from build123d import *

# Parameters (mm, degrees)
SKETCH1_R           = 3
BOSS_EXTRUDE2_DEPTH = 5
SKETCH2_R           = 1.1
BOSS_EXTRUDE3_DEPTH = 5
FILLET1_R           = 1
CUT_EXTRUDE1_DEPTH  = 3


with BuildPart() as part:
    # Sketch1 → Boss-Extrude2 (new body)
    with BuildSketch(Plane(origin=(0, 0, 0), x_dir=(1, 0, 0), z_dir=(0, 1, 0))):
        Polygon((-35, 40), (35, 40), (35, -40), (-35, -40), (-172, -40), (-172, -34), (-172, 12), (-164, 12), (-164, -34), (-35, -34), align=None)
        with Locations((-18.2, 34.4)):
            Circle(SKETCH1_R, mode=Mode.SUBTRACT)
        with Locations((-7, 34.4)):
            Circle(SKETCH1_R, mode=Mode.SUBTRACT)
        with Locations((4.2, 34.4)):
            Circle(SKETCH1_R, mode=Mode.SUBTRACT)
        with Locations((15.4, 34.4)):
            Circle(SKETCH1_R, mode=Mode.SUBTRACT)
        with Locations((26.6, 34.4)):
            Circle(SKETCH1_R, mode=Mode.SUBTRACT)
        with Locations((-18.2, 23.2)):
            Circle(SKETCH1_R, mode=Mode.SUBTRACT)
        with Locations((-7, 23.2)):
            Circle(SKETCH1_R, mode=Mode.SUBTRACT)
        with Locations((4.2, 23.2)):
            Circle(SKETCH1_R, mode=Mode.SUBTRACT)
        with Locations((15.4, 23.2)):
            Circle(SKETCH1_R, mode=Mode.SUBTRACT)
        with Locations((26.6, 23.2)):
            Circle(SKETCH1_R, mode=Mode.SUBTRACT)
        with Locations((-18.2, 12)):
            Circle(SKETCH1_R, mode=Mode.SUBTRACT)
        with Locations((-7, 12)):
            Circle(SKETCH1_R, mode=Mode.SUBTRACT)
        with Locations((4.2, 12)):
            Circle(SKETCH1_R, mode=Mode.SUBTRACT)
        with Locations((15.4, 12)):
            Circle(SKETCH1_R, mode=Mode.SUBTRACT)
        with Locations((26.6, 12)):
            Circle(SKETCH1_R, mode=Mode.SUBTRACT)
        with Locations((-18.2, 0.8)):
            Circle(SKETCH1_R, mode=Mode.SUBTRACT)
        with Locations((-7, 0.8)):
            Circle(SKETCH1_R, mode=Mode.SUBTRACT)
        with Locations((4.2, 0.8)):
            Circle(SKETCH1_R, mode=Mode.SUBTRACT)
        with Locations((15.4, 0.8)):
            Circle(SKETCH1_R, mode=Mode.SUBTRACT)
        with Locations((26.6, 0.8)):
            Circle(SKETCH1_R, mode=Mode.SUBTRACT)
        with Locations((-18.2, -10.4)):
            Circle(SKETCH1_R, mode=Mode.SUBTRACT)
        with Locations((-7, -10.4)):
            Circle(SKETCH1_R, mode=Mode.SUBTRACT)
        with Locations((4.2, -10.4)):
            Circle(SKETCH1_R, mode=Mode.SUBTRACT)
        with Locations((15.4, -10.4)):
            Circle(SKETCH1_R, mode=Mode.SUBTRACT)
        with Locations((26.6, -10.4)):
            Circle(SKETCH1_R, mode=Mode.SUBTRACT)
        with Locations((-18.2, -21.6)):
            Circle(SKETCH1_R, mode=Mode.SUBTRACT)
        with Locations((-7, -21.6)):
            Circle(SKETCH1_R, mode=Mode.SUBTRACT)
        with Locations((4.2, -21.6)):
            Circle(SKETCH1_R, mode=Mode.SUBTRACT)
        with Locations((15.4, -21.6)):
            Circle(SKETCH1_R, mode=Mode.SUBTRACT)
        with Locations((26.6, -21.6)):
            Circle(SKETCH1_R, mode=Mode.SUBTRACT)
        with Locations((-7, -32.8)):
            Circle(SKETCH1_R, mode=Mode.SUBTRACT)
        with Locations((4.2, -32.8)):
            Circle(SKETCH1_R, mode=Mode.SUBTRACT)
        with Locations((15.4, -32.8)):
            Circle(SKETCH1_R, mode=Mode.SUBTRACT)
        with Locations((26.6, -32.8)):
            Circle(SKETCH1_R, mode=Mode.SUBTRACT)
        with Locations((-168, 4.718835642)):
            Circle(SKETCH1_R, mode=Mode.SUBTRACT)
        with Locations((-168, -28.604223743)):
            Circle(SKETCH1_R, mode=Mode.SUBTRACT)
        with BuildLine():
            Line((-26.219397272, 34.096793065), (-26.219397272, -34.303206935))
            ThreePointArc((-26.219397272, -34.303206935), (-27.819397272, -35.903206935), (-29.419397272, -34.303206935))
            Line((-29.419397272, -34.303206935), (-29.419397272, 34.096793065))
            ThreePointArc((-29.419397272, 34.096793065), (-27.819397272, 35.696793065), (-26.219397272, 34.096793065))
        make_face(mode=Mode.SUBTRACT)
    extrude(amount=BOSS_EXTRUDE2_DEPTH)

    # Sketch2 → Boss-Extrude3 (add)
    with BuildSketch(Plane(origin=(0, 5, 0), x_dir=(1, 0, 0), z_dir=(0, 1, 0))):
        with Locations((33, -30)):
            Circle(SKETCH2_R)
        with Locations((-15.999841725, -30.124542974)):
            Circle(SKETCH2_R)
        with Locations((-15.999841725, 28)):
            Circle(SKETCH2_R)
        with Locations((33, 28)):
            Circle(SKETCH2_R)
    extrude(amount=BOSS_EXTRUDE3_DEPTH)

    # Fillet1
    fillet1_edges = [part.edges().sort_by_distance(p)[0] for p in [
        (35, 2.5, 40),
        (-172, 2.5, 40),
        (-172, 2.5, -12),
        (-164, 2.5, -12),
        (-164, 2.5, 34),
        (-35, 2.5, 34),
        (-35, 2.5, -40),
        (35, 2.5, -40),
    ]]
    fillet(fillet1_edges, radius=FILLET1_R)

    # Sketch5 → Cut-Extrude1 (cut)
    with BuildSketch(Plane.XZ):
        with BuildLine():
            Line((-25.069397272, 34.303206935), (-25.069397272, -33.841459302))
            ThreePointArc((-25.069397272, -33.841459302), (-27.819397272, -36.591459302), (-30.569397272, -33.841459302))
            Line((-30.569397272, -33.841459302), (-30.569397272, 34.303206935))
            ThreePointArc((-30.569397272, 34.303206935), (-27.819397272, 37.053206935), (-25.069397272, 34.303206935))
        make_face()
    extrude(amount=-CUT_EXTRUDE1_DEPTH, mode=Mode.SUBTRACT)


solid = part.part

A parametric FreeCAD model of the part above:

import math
import FreeCAD as App
import Part
import Sketcher

V = App.Vector


def edges_at(feature, points):
    """Names of the edges that pass closest to the given points."""
    edges = feature.Shape.Edges
    near = lambda p: min(range(len(edges)), key=lambda i: edges[i].distToShape(Part.Vertex(*p))[0])
    return sorted({f"Edge{near(p) + 1}" for p in points})


def add_polygon(sketch, points):
    """Adds a closed chain of lines whose ends are joined by coincident constraints."""
    first, n = sketch.GeometryCount, len(points)
    for a, b in zip(points, points[1:] + points[:1]):
        sketch.addGeometry(Part.LineSegment(App.Vector(*a, 0), App.Vector(*b, 0)), False)
    for i in range(n):
        sketch.addConstraint(Sketcher.Constraint("Coincident", first + i, 2, first + (i + 1) % n, 1))

doc = App.newDocument("Part")
body = doc.addObject("PartDesign::Body", "Body")

sketch1 = body.newObject("Sketcher::SketchObject", "Sketch")
sketch1.AttachmentSupport = (doc.getObject("XZ_Plane"), [""])
sketch1.MapMode = "FlatFace"
add_polygon(sketch1, [(35, -40), (-35, -40), (-35, 34), (-164, 34), (-164, -12), (-172, -12), (-172, 40), (35, 40)])
sketch1.addGeometry(Part.Circle(V(26.6, 32.8, 0), V(0, 0, 1), 3), False)
sketch1.addGeometry(Part.Circle(V(15.4, 32.8, 0), V(0, 0, 1), 3), False)
sketch1.addGeometry(Part.Circle(V(4.2, 32.8, 0), V(0, 0, 1), 3), False)
sketch1.addGeometry(Part.Circle(V(-7, 32.8, 0), V(0, 0, 1), 3), False)
sketch1.addGeometry(Part.Circle(V(26.6, 21.6, 0), V(0, 0, 1), 3), False)
sketch1.addGeometry(Part.Circle(V(15.4, 21.6, 0), V(0, 0, 1), 3), False)
sketch1.addGeometry(Part.Circle(V(4.2, 21.6, 0), V(0, 0, 1), 3), False)
sketch1.addGeometry(Part.Circle(V(-7, 21.6, 0), V(0, 0, 1), 3), False)
sketch1.addGeometry(Part.Circle(V(-18.2, 21.6, 0), V(0, 0, 1), 3), False)
sketch1.addGeometry(Part.Circle(V(26.6, 10.4, 0), V(0, 0, 1), 3), False)
sketch1.addGeometry(Part.Circle(V(15.4, 10.4, 0), V(0, 0, 1), 3), False)
sketch1.addGeometry(Part.Circle(V(4.2, 10.4, 0), V(0, 0, 1), 3), False)
sketch1.addGeometry(Part.Circle(V(-7, 10.4, 0), V(0, 0, 1), 3), False)
sketch1.addGeometry(Part.Circle(V(-18.2, 10.4, 0), V(0, 0, 1), 3), False)
sketch1.addGeometry(Part.LineSegment(V(-26.219397, -34.096793, 0), V(-26.219397, 34.303207, 0)), False)
sketch1.addGeometry(Part.ArcOfCircle(Part.Circle(V(-27.819397, 34.303207, 0), V(0, 0, 1), 1.6), math.radians(0), math.radians(180)), False)
sketch1.addGeometry(Part.LineSegment(V(-29.419397, 34.303207, 0), V(-29.419397, -34.096793, 0)), False)
sketch1.addGeometry(Part.ArcOfCircle(Part.Circle(V(-27.819397, -34.096793, 0), V(0, 0, 1), 1.6), math.radians(180), math.radians(360)), False)
sketch1.addGeometry(Part.Circle(V(-168, 28.604224, 0), V(0, 0, 1), 3), False)
sketch1.addGeometry(Part.Circle(V(26.6, -0.8, 0), V(0, 0, 1), 3), False)
sketch1.addGeometry(Part.Circle(V(15.4, -0.8, 0), V(0, 0, 1), 3), False)
sketch1.addGeometry(Part.Circle(V(4.2, -0.8, 0), V(0, 0, 1), 3), False)
sketch1.addGeometry(Part.Circle(V(-7, -0.8, 0), V(0, 0, 1), 3), False)
sketch1.addGeometry(Part.Circle(V(-18.2, -0.8, 0), V(0, 0, 1), 3), False)
sketch1.addGeometry(Part.Circle(V(26.6, -12, 0), V(0, 0, 1), 3), False)
sketch1.addGeometry(Part.Circle(V(15.4, -12, 0), V(0, 0, 1), 3), False)
sketch1.addGeometry(Part.Circle(V(4.2, -12, 0), V(0, 0, 1), 3), False)
sketch1.addGeometry(Part.Circle(V(-7, -12, 0), V(0, 0, 1), 3), False)
sketch1.addGeometry(Part.Circle(V(-18.2, -12, 0), V(0, 0, 1), 3), False)
sketch1.addGeometry(Part.Circle(V(26.6, -23.2, 0), V(0, 0, 1), 3), False)
sketch1.addGeometry(Part.Circle(V(15.4, -23.2, 0), V(0, 0, 1), 3), False)
sketch1.addGeometry(Part.Circle(V(4.2, -23.2, 0), V(0, 0, 1), 3), False)
sketch1.addGeometry(Part.Circle(V(-7, -23.2, 0), V(0, 0, 1), 3), False)
sketch1.addGeometry(Part.Circle(V(-18.2, -23.2, 0), V(0, 0, 1), 3), False)
sketch1.addGeometry(Part.Circle(V(26.6, -34.4, 0), V(0, 0, 1), 3), False)
sketch1.addGeometry(Part.Circle(V(15.4, -34.4, 0), V(0, 0, 1), 3), False)
sketch1.addGeometry(Part.Circle(V(4.2, -34.4, 0), V(0, 0, 1), 3), False)
sketch1.addGeometry(Part.Circle(V(-7, -34.4, 0), V(0, 0, 1), 3), False)
sketch1.addGeometry(Part.Circle(V(-18.2, -34.4, 0), V(0, 0, 1), 3), False)
sketch1.addGeometry(Part.Circle(V(-168, -4.718836, 0), V(0, 0, 1), 3), False)
sketch1.addConstraint(Sketcher.Constraint("Tangent", 22, 2, 23, 1))
sketch1.addConstraint(Sketcher.Constraint("Tangent", 23, 2, 24, 1))
sketch1.addConstraint(Sketcher.Constraint("Tangent", 24, 2, 25, 1))
sketch1.addConstraint(Sketcher.Constraint("Tangent", 25, 2, 22, 1))
sketch1.addConstraint(Sketcher.Constraint("Horizontal", 0))
sketch1.addConstraint(Sketcher.Constraint("Vertical", 1))
sketch1.addConstraint(Sketcher.Constraint("Horizontal", 2))
sketch1.addConstraint(Sketcher.Constraint("Vertical", 3))
sketch1.addConstraint(Sketcher.Constraint("Horizontal", 4))
sketch1.addConstraint(Sketcher.Constraint("Vertical", 5))
sketch1.addConstraint(Sketcher.Constraint("Horizontal", 6))
sketch1.addConstraint(Sketcher.Constraint("Vertical", 7))
sketch1.addConstraint(Sketcher.Constraint("Vertical", 22))
sketch1.addConstraint(Sketcher.Constraint("Vertical", 24))
sketch1.addConstraint(Sketcher.Constraint("Equal", 8, 9))
sketch1.addConstraint(Sketcher.Constraint("Equal", 9, 10))
sketch1.addConstraint(Sketcher.Constraint("Equal", 10, 11))
sketch1.addConstraint(Sketcher.Constraint("Equal", 11, 12))
sketch1.addConstraint(Sketcher.Constraint("Equal", 12, 13))
sketch1.addConstraint(Sketcher.Constraint("Equal", 13, 14))
sketch1.addConstraint(Sketcher.Constraint("Equal", 14, 15))
sketch1.addConstraint(Sketcher.Constraint("Equal", 15, 16))
sketch1.addConstraint(Sketcher.Constraint("Equal", 16, 17))
sketch1.addConstraint(Sketcher.Constraint("Equal", 17, 18))
sketch1.addConstraint(Sketcher.Constraint("Equal", 18, 19))
sketch1.addConstraint(Sketcher.Constraint("Equal", 19, 20))
sketch1.addConstraint(Sketcher.Constraint("Equal", 20, 21))
sketch1.addConstraint(Sketcher.Constraint("Equal", 21, 26))
sketch1.addConstraint(Sketcher.Constraint("Equal", 26, 27))
sketch1.addConstraint(Sketcher.Constraint("Equal", 27, 28))
sketch1.addConstraint(Sketcher.Constraint("Equal", 28, 29))
sketch1.addConstraint(Sketcher.Constraint("Equal", 29, 30))
sketch1.addConstraint(Sketcher.Constraint("Equal", 30, 31))
sketch1.addConstraint(Sketcher.Constraint("Equal", 31, 32))
sketch1.addConstraint(Sketcher.Constraint("Equal", 32, 33))
sketch1.addConstraint(Sketcher.Constraint("Equal", 33, 34))
sketch1.addConstraint(Sketcher.Constraint("Equal", 34, 35))
sketch1.addConstraint(Sketcher.Constraint("Equal", 35, 36))
sketch1.addConstraint(Sketcher.Constraint("Equal", 36, 37))
sketch1.addConstraint(Sketcher.Constraint("Equal", 37, 38))
sketch1.addConstraint(Sketcher.Constraint("Equal", 38, 39))
sketch1.addConstraint(Sketcher.Constraint("Equal", 39, 40))
sketch1.addConstraint(Sketcher.Constraint("Equal", 40, 41))
sketch1.addConstraint(Sketcher.Constraint("Equal", 41, 42))
sketch1.addConstraint(Sketcher.Constraint("Equal", 42, 43))
sketch1.addConstraint(Sketcher.Constraint("Equal", 43, 44))
sketch1.addConstraint(Sketcher.Constraint("Equal", 44, 45))
sketch1.addConstraint(Sketcher.Constraint("Equal", 45, 46))
sketch1.addConstraint(Sketcher.Constraint("Equal", 46, 47))
sketch1.addConstraint(Sketcher.Constraint("Symmetric", 0, 2, 6, 2, -1, 1))
sketch1.addConstraint(Sketcher.Constraint("Horizontal", 8, 3, 9, 3))
sketch1.addConstraint(Sketcher.Constraint("Horizontal", 9, 3, 10, 3))
sketch1.addConstraint(Sketcher.Constraint("Horizontal", 10, 3, 11, 3))
sketch1.addConstraint(Sketcher.Constraint("Horizontal", 12, 3, 13, 3))
sketch1.addConstraint(Sketcher.Constraint("Horizontal", 13, 3, 14, 3))
sketch1.addConstraint(Sketcher.Constraint("Horizontal", 14, 3, 15, 3))
sketch1.addConstraint(Sketcher.Constraint("Horizontal", 15, 3, 16, 3))
sketch1.addConstraint(Sketcher.Constraint("Horizontal", 17, 3, 18, 3))
sketch1.addConstraint(Sketcher.Constraint("Horizontal", 18, 3, 19, 3))
sketch1.addConstraint(Sketcher.Constraint("Horizontal", 19, 3, 20, 3))
sketch1.addConstraint(Sketcher.Constraint("Horizontal", 20, 3, 21, 3))
sketch1.addConstraint(Sketcher.Constraint("Horizontal", 27, 3, 28, 3))
sketch1.addConstraint(Sketcher.Constraint("Horizontal", 28, 3, 29, 3))
sketch1.addConstraint(Sketcher.Constraint("Horizontal", 29, 3, 30, 3))
sketch1.addConstraint(Sketcher.Constraint("Horizontal", 30, 3, 31, 3))
sketch1.addConstraint(Sketcher.Constraint("Horizontal", 32, 3, 33, 3))
sketch1.addConstraint(Sketcher.Constraint("Horizontal", 33, 3, 34, 3))
sketch1.addConstraint(Sketcher.Constraint("Horizontal", 34, 3, 35, 3))
sketch1.addConstraint(Sketcher.Constraint("Horizontal", 35, 3, 36, 3))
sketch1.addConstraint(Sketcher.Constraint("Horizontal", 37, 3, 38, 3))
sketch1.addConstraint(Sketcher.Constraint("Horizontal", 38, 3, 39, 3))
sketch1.addConstraint(Sketcher.Constraint("Horizontal", 39, 3, 40, 3))
sketch1.addConstraint(Sketcher.Constraint("Horizontal", 40, 3, 41, 3))
sketch1.addConstraint(Sketcher.Constraint("Horizontal", 42, 3, 43, 3))
sketch1.addConstraint(Sketcher.Constraint("Horizontal", 43, 3, 44, 3))
sketch1.addConstraint(Sketcher.Constraint("Horizontal", 44, 3, 45, 3))
sketch1.addConstraint(Sketcher.Constraint("Horizontal", 45, 3, 46, 3))
sketch1.addConstraint(Sketcher.Constraint("Horizontal", 36, 3, 3, 2))
sketch1.addConstraint(Sketcher.Constraint("Vertical", 8, 3, 12, 3))
sketch1.addConstraint(Sketcher.Constraint("Vertical", 9, 3, 13, 3))
sketch1.addConstraint(Sketcher.Constraint("Vertical", 10, 3, 14, 3))
sketch1.addConstraint(Sketcher.Constraint("Vertical", 11, 3, 15, 3))
sketch1.addConstraint(Sketcher.Constraint("Vertical", 12, 3, 17, 3))
sketch1.addConstraint(Sketcher.Constraint("Vertical", 13, 3, 18, 3))
sketch1.addConstraint(Sketcher.Constraint("Vertical", 14, 3, 19, 3))
sketch1.addConstraint(Sketcher.Constraint("Vertical", 15, 3, 20, 3))
sketch1.addConstraint(Sketcher.Constraint("Vertical", 16, 3, 21, 3))
sketch1.addConstraint(Sketcher.Constraint("Vertical", 17, 3, 27, 3))
sketch1.addConstraint(Sketcher.Constraint("Vertical", 18, 3, 28, 3))
sketch1.addConstraint(Sketcher.Constraint("Vertical", 19, 3, 29, 3))
sketch1.addConstraint(Sketcher.Constraint("Vertical", 20, 3, 30, 3))
sketch1.addConstraint(Sketcher.Constraint("Vertical", 21, 3, 31, 3))
sketch1.addConstraint(Sketcher.Constraint("Vertical", 27, 3, 32, 3))
sketch1.addConstraint(Sketcher.Constraint("Vertical", 28, 3, 33, 3))
sketch1.addConstraint(Sketcher.Constraint("Vertical", 29, 3, 34, 3))
sketch1.addConstraint(Sketcher.Constraint("Vertical", 30, 3, 35, 3))
sketch1.addConstraint(Sketcher.Constraint("Vertical", 31, 3, 36, 3))
sketch1.addConstraint(Sketcher.Constraint("Vertical", 32, 3, 37, 3))
sketch1.addConstraint(Sketcher.Constraint("Vertical", 33, 3, 38, 3))
sketch1.addConstraint(Sketcher.Constraint("Vertical", 34, 3, 39, 3))
sketch1.addConstraint(Sketcher.Constraint("Vertical", 35, 3, 40, 3))
sketch1.addConstraint(Sketcher.Constraint("Vertical", 36, 3, 41, 3))
sketch1.addConstraint(Sketcher.Constraint("Vertical", 37, 3, 42, 3))
sketch1.addConstraint(Sketcher.Constraint("Vertical", 38, 3, 43, 3))
sketch1.addConstraint(Sketcher.Constraint("Vertical", 39, 3, 44, 3))
sketch1.addConstraint(Sketcher.Constraint("Vertical", 40, 3, 45, 3))
sketch1.addConstraint(Sketcher.Constraint("Vertical", 41, 3, 46, 3))
sketch1.addConstraint(Sketcher.Constraint("Vertical", 26, 3, 47, 3))
sketch1.addConstraint(Sketcher.Constraint("Diameter", 8, 6.0))
sketch1.addConstraint(Sketcher.Constraint("Radius", 23, 1.6))
sketch1.addConstraint(Sketcher.Constraint("DistanceX", 0, 2, 0, 1, 70.0))
sketch1.addConstraint(Sketcher.Constraint("DistanceX", 2, 2, 2, 1, 129.0))
sketch1.addConstraint(Sketcher.Constraint("DistanceX", 4, 2, 4, 1, 8.0))
sketch1.addConstraint(Sketcher.Constraint("DistanceY", 1, 1, 1, 2, 74.0))
sketch1.addConstraint(Sketcher.Constraint("DistanceY", 3, 2, 3, 1, 46.0))
sketch1.addConstraint(Sketcher.Constraint("DistanceY", 5, 1, 5, 2, 52.0))
sketch1.addConstraint(Sketcher.Constraint("DistanceY", 22, 1, 22, 2, 68.4))
sketch1.addConstraint(Sketcher.Constraint("DistanceX", 11, 3, -1, 1, 7.0))
sketch1.addConstraint(Sketcher.Constraint("DistanceX", 26, 3, -1, 1, 168.0))
sketch1.addConstraint(Sketcher.Constraint("DistanceX", -1, 1, 8, 3, 26.6))
sketch1.addConstraint(Sketcher.Constraint("DistanceY", -1, 1, 8, 3, 32.8))
sketch1.addConstraint(Sketcher.Constraint("DistanceX", -1, 1, 9, 3, 15.4))
sketch1.addConstraint(Sketcher.Constraint("DistanceX", -1, 1, 10, 3, 4.2))
sketch1.addConstraint(Sketcher.Constraint("DistanceY", -1, 1, 12, 3, 21.6))
sketch1.addConstraint(Sketcher.Constraint("DistanceX", 16, 3, -1, 1, 18.2))
sketch1.addConstraint(Sketcher.Constraint("DistanceY", -1, 1, 17, 3, 10.4))
sketch1.addConstraint(Sketcher.Constraint("DistanceY", 27, 3, -1, 1, 0.8))
sketch1.addConstraint(Sketcher.Constraint("DistanceY", 37, 3, -1, 1, 23.2))
sketch1.addConstraint(Sketcher.Constraint("DistanceY", 42, 3, -1, 1, 34.4))
sketch1.addConstraint(Sketcher.Constraint("DistanceY", 47, 3, 26, 3, 33.323059))
sketch1.addConstraint(Sketcher.Constraint("DistanceX", 23, 3, -1, 1, 27.819397))
sketch1.addConstraint(Sketcher.Constraint("DistanceY", -1, 1, 23, 3, 34.303207))
sketch1.addConstraint(Sketcher.Constraint("DistanceY", -1, 1, 26, 3, 28.604224))
pad1 = body.newObject("PartDesign::Pad", "Pad")
pad1.Profile = sketch1
pad1.Length = 5
pad1.Reversed = True

sketch2 = body.newObject("Sketcher::SketchObject", "Sketch001")
sketch2.AttachmentSupport = (doc.getObject("XZ_Plane"), [""])
sketch2.MapMode = "FlatFace"
sketch2.AttachmentOffset = App.Placement(V(0, 0, -5), App.Rotation())
sketch2.addGeometry(Part.Circle(V(33, 30, 0), V(0, 0, 1), 1.1), False)
sketch2.addGeometry(Part.Circle(V(-15.999842, 30.124543, 0), V(0, 0, 1), 1.1), False)
sketch2.addGeometry(Part.Circle(V(-15.999842, -28, 0), V(0, 0, 1), 1.1), False)
sketch2.addGeometry(Part.Circle(V(33, -28, 0), V(0, 0, 1), 1.1), False)
sketch2.addConstraint(Sketcher.Constraint("Equal", 0, 1))
sketch2.addConstraint(Sketcher.Constraint("Equal", 1, 2))
sketch2.addConstraint(Sketcher.Constraint("Equal", 2, 3))
sketch2.addConstraint(Sketcher.Constraint("Horizontal", 2, 3, 3, 3))
sketch2.addConstraint(Sketcher.Constraint("Vertical", 1, 3, 2, 3))
sketch2.addConstraint(Sketcher.Constraint("Vertical", 0, 3, 3, 3))
sketch2.addConstraint(Sketcher.Constraint("Diameter", 0, 2.2))
sketch2.addConstraint(Sketcher.Constraint("DistanceX", -1, 1, 0, 3, 33.0))
sketch2.addConstraint(Sketcher.Constraint("DistanceY", -1, 1, 0, 3, 30.0))
sketch2.addConstraint(Sketcher.Constraint("DistanceY", 2, 3, -1, 1, 28.0))
sketch2.addConstraint(Sketcher.Constraint("DistanceX", 1, 3, -1, 1, 15.999842))
sketch2.addConstraint(Sketcher.Constraint("DistanceY", -1, 1, 1, 3, 30.124543))
pad2 = body.newObject("PartDesign::Pad", "Pad001")
pad2.Profile = sketch2
pad2.Length = 5
pad2.Reversed = True
doc.recompute()

fillet = body.newObject("PartDesign::Fillet", "Fillet")
fillet.Base = (pad2, edges_at(pad2, [
    (35, 2.5, 40),
    (-172, 2.5, 40),
    (-172, 2.5, -12),
    (-164, 2.5, -12),
    (-164, 2.5, 34),
    (-35, 2.5, 34),
    (-35, 2.5, -40),
    (35, 2.5, -40),
]))
fillet.Radius = 1

sketch3 = body.newObject("Sketcher::SketchObject", "Sketch002")
sketch3.AttachmentSupport = (doc.getObject("XZ_Plane"), [""])
sketch3.MapMode = "FlatFace"
sketch3.addGeometry(Part.LineSegment(V(-25.069397, -33.841459, 0), V(-25.069397, 34.303207, 0)), False)
sketch3.addGeometry(Part.ArcOfCircle(Part.Circle(V(-27.819397, 34.303207, 0), V(0, 0, 1), 2.75), math.radians(0), math.radians(180)), False)
sketch3.addGeometry(Part.LineSegment(V(-30.569397, 34.303207, 0), V(-30.569397, -33.841459, 0)), False)
sketch3.addGeometry(Part.ArcOfCircle(Part.Circle(V(-27.819397, -33.841459, 0), V(0, 0, 1), 2.75), math.radians(180), math.radians(360)), False)
sketch3.addConstraint(Sketcher.Constraint("Tangent", 0, 2, 1, 1))
sketch3.addConstraint(Sketcher.Constraint("Tangent", 1, 2, 2, 1))
sketch3.addConstraint(Sketcher.Constraint("Tangent", 2, 2, 3, 1))
sketch3.addConstraint(Sketcher.Constraint("Tangent", 3, 2, 0, 1))
sketch3.addConstraint(Sketcher.Constraint("Vertical", 0))
sketch3.addConstraint(Sketcher.Constraint("Vertical", 2))
sketch3.addConstraint(Sketcher.Constraint("Radius", 1, 2.75))
sketch3.addConstraint(Sketcher.Constraint("DistanceY", 0, 1, 0, 2, 68.144666))
sketch3.addConstraint(Sketcher.Constraint("DistanceY", 3, 3, -1, 1, 33.841459))
sketch3.addConstraint(Sketcher.Constraint("DistanceX", 1, 3, -1, 1, 27.819397))
pocket1 = body.newObject("PartDesign::Pocket", "Pocket")
pocket1.Profile = sketch3
pocket1.Length = 3

doc.recompute()
